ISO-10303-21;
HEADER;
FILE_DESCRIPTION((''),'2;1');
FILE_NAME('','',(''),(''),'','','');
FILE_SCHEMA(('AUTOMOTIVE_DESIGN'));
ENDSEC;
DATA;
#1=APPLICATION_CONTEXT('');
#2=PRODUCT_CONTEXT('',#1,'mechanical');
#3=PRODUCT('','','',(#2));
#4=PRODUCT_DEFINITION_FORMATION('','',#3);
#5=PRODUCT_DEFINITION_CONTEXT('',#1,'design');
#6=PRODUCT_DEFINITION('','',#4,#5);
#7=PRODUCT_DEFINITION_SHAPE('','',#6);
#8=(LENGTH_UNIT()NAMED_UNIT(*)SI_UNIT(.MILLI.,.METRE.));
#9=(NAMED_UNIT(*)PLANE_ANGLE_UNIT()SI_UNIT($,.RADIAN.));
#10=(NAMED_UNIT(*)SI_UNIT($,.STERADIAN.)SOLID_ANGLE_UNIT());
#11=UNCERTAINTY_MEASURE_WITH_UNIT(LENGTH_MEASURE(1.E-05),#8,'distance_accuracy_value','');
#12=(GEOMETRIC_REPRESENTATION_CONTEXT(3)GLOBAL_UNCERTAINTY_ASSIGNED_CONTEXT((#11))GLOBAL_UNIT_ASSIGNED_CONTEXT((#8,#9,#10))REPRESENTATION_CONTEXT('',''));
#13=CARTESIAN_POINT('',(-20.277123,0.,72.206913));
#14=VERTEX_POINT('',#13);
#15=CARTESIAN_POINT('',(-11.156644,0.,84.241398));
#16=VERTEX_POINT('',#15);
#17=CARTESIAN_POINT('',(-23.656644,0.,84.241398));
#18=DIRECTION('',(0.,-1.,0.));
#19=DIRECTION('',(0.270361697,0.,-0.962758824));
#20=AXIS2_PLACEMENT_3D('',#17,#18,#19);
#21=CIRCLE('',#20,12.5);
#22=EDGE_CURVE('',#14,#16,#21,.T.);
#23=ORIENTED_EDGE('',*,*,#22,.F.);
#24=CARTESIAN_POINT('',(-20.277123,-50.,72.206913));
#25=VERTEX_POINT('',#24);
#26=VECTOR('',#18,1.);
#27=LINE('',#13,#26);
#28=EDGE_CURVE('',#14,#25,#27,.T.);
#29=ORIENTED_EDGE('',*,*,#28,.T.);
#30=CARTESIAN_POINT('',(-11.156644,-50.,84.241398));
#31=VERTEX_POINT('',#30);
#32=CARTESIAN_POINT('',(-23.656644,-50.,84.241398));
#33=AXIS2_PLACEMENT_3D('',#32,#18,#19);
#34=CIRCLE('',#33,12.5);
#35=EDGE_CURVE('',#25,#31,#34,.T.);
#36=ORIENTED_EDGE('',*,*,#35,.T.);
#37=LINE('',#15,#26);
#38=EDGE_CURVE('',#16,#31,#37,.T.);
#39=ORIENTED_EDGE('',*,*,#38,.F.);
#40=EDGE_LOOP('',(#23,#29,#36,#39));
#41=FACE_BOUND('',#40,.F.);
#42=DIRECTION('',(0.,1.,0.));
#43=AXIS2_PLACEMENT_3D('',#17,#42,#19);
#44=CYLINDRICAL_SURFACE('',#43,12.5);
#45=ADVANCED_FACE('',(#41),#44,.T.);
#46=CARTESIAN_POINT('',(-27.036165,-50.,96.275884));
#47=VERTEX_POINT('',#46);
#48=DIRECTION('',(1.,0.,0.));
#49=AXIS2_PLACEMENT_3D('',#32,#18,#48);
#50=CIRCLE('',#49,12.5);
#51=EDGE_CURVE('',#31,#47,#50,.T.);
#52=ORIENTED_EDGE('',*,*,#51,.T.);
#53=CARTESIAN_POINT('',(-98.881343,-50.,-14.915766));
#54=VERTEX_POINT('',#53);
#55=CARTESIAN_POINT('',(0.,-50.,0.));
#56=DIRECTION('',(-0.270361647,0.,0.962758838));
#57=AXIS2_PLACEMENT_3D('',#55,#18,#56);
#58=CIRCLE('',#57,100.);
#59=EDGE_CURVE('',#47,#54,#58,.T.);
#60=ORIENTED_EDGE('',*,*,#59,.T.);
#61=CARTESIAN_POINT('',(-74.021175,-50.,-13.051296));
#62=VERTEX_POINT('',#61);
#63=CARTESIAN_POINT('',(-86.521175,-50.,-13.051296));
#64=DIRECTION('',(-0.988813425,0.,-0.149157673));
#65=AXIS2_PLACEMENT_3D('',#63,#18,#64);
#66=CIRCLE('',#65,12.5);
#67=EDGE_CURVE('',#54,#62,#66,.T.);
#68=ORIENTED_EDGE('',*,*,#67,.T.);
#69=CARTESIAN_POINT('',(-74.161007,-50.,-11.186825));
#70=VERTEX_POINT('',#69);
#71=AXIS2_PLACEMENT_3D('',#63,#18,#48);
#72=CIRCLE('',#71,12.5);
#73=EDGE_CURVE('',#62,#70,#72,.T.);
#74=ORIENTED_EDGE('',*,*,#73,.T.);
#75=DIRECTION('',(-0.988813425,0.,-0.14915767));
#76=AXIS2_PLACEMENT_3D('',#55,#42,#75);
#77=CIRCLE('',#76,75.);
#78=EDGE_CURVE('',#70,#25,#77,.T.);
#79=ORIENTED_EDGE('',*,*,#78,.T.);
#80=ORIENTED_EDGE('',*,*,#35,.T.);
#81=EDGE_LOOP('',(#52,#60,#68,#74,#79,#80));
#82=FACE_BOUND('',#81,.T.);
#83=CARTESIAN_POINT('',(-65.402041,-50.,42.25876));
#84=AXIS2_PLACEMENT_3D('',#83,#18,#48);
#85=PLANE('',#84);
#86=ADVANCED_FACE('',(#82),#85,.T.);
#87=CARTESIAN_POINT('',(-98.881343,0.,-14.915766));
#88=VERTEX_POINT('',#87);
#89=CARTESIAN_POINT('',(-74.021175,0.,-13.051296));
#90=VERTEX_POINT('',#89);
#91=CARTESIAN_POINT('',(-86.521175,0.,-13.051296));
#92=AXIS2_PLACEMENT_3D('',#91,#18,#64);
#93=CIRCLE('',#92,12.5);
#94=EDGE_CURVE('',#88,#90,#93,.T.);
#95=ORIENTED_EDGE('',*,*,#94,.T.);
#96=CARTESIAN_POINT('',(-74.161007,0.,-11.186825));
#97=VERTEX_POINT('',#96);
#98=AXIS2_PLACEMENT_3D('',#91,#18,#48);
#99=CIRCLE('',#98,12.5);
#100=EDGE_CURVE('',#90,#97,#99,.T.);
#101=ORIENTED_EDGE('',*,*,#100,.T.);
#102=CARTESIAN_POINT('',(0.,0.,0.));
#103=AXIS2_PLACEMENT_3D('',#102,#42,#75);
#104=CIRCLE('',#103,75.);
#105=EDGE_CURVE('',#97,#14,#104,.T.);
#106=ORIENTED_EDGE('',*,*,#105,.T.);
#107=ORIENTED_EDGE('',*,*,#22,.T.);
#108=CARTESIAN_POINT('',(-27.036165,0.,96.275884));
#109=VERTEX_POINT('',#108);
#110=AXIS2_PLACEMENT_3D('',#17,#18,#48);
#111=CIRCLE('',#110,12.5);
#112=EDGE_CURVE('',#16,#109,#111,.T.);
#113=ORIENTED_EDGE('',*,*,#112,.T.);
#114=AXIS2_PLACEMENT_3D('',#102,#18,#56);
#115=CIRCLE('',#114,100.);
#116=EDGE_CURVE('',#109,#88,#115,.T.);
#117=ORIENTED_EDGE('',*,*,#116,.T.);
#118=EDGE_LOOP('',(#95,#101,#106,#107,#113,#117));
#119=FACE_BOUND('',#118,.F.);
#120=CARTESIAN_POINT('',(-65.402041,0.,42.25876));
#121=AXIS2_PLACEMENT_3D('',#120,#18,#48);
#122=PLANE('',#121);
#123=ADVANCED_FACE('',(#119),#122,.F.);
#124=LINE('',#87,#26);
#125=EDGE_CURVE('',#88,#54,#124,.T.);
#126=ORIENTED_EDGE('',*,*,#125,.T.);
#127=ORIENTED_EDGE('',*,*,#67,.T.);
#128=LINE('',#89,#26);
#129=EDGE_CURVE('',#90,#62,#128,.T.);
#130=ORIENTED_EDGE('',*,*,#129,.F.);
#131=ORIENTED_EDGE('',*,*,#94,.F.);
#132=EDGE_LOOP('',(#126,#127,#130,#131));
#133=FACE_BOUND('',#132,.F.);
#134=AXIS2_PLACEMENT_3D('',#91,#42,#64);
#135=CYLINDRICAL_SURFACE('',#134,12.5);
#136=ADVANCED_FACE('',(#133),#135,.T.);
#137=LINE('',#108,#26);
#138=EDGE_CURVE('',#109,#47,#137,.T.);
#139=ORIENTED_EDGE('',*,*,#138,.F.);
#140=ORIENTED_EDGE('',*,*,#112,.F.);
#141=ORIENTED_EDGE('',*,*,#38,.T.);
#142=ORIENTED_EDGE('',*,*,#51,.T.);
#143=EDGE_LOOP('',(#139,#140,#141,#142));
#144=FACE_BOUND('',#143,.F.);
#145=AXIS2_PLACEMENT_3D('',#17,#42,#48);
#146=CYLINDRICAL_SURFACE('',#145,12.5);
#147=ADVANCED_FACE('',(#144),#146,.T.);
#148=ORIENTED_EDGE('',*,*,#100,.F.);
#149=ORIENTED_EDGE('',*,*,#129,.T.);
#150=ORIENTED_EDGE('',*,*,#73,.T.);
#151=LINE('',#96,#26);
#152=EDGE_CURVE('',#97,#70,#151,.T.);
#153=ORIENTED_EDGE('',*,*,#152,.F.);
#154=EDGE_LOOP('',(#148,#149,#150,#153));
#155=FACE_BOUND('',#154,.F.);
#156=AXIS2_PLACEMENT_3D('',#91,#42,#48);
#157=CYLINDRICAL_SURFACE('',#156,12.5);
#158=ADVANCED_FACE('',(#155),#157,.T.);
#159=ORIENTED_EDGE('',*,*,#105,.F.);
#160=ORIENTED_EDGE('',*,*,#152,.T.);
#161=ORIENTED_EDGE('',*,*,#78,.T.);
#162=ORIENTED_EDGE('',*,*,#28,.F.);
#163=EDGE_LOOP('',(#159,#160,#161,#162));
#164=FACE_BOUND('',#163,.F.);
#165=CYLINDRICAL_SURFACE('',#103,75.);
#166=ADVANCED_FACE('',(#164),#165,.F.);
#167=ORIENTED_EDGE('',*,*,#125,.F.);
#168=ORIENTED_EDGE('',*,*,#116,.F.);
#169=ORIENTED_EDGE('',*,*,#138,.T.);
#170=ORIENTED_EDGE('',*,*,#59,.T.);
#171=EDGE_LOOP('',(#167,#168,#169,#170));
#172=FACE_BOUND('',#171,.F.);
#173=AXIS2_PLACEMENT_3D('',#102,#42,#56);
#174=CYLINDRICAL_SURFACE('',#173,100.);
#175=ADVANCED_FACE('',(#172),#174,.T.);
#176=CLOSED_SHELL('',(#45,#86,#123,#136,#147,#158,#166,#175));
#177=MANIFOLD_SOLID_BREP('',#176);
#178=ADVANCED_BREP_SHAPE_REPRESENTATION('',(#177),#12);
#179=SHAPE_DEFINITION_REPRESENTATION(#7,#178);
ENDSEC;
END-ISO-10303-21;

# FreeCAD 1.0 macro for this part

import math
import FreeCAD as App
import Part
import Sketcher

doc = App.newDocument("Part")
body = doc.addObject("PartDesign::Body", "Body")

sketch1 = body.newObject("Sketcher::SketchObject", "Sketch")
sketch1.AttachmentSupport = (doc.getObject("XZ_Plane"), [""])
sketch1.MapMode = "FlatFace"
sketch1.addGeometry([
    Part.ArcOfCircle(Part.Circle(App.Vector(0, 0, 0), App.Vector(0, 0, 1), 100), math.radians(106), math.radians(189)),
    Part.ArcOfCircle(Part.Circle(App.Vector(-86.5, -13.1, 0), App.Vector(0, 0, 1), 12.5), math.radians(-171), math.radians(0)),
    Part.ArcOfCircle(Part.Circle(App.Vector(-86.5, -13.1, 0), App.Vector(0, 0, 1), 12.5), math.radians(0), math.radians(8.58)),
    Part.ArcOfCircle(Part.Circle(App.Vector(0, 0, 0), App.Vector(0, 0, 1), 75), math.radians(106), math.radians(189)),
    Part.ArcOfCircle(Part.Circle(App.Vector(-23.7, 84.2, 0), App.Vector(0, 0, 1), 12.5), math.radians(-74), math.radians(0)),
    Part.ArcOfCircle(Part.Circle(App.Vector(-23.7, 84.2, 0), App.Vector(0, 0, 1), 12.5), math.radians(0), math.radians(106)),
], False)
sketch1.addConstraint([
    Sketcher.Constraint("Tangent", 0, 2, 1, 1),
    Sketcher.Constraint("Tangent", 1, 2, 2, 1),
    Sketcher.Constraint("Tangent", 2, 2, 3, 2),
    Sketcher.Constraint("Tangent", 3, 1, 4, 1),
    Sketcher.Constraint("Tangent", 4, 2, 5, 1),
    Sketcher.Constraint("Tangent", 5, 2, 0, 1),
    Sketcher.Constraint("Coincident", 0, 3, -1, 1),
    Sketcher.Constraint("Coincident", 3, 3, -1, 1),
    Sketcher.Constraint("Equal", 1, 2),
    Sketcher.Constraint("Equal", 2, 4),
    Sketcher.Constraint("Horizontal", 2, 3, 1, 2),
    Sketcher.Constraint("Horizontal", 5, 3, 4, 2),
    Sketcher.Constraint("Radius", 0, 100.0),
    Sketcher.Constraint("Radius", 3, 75.0),
    Sketcher.Constraint("DistanceY", -1, 1, 4, 3, 84.241398),
    Sketcher.Constraint("DistanceX", 0, 2, 4, 3, 75.224698),
])
pad1 = body.newObject("PartDesign::Pad", "Pad")
pad1.Profile = sketch1
pad1.Length = 50

doc.recompute()
